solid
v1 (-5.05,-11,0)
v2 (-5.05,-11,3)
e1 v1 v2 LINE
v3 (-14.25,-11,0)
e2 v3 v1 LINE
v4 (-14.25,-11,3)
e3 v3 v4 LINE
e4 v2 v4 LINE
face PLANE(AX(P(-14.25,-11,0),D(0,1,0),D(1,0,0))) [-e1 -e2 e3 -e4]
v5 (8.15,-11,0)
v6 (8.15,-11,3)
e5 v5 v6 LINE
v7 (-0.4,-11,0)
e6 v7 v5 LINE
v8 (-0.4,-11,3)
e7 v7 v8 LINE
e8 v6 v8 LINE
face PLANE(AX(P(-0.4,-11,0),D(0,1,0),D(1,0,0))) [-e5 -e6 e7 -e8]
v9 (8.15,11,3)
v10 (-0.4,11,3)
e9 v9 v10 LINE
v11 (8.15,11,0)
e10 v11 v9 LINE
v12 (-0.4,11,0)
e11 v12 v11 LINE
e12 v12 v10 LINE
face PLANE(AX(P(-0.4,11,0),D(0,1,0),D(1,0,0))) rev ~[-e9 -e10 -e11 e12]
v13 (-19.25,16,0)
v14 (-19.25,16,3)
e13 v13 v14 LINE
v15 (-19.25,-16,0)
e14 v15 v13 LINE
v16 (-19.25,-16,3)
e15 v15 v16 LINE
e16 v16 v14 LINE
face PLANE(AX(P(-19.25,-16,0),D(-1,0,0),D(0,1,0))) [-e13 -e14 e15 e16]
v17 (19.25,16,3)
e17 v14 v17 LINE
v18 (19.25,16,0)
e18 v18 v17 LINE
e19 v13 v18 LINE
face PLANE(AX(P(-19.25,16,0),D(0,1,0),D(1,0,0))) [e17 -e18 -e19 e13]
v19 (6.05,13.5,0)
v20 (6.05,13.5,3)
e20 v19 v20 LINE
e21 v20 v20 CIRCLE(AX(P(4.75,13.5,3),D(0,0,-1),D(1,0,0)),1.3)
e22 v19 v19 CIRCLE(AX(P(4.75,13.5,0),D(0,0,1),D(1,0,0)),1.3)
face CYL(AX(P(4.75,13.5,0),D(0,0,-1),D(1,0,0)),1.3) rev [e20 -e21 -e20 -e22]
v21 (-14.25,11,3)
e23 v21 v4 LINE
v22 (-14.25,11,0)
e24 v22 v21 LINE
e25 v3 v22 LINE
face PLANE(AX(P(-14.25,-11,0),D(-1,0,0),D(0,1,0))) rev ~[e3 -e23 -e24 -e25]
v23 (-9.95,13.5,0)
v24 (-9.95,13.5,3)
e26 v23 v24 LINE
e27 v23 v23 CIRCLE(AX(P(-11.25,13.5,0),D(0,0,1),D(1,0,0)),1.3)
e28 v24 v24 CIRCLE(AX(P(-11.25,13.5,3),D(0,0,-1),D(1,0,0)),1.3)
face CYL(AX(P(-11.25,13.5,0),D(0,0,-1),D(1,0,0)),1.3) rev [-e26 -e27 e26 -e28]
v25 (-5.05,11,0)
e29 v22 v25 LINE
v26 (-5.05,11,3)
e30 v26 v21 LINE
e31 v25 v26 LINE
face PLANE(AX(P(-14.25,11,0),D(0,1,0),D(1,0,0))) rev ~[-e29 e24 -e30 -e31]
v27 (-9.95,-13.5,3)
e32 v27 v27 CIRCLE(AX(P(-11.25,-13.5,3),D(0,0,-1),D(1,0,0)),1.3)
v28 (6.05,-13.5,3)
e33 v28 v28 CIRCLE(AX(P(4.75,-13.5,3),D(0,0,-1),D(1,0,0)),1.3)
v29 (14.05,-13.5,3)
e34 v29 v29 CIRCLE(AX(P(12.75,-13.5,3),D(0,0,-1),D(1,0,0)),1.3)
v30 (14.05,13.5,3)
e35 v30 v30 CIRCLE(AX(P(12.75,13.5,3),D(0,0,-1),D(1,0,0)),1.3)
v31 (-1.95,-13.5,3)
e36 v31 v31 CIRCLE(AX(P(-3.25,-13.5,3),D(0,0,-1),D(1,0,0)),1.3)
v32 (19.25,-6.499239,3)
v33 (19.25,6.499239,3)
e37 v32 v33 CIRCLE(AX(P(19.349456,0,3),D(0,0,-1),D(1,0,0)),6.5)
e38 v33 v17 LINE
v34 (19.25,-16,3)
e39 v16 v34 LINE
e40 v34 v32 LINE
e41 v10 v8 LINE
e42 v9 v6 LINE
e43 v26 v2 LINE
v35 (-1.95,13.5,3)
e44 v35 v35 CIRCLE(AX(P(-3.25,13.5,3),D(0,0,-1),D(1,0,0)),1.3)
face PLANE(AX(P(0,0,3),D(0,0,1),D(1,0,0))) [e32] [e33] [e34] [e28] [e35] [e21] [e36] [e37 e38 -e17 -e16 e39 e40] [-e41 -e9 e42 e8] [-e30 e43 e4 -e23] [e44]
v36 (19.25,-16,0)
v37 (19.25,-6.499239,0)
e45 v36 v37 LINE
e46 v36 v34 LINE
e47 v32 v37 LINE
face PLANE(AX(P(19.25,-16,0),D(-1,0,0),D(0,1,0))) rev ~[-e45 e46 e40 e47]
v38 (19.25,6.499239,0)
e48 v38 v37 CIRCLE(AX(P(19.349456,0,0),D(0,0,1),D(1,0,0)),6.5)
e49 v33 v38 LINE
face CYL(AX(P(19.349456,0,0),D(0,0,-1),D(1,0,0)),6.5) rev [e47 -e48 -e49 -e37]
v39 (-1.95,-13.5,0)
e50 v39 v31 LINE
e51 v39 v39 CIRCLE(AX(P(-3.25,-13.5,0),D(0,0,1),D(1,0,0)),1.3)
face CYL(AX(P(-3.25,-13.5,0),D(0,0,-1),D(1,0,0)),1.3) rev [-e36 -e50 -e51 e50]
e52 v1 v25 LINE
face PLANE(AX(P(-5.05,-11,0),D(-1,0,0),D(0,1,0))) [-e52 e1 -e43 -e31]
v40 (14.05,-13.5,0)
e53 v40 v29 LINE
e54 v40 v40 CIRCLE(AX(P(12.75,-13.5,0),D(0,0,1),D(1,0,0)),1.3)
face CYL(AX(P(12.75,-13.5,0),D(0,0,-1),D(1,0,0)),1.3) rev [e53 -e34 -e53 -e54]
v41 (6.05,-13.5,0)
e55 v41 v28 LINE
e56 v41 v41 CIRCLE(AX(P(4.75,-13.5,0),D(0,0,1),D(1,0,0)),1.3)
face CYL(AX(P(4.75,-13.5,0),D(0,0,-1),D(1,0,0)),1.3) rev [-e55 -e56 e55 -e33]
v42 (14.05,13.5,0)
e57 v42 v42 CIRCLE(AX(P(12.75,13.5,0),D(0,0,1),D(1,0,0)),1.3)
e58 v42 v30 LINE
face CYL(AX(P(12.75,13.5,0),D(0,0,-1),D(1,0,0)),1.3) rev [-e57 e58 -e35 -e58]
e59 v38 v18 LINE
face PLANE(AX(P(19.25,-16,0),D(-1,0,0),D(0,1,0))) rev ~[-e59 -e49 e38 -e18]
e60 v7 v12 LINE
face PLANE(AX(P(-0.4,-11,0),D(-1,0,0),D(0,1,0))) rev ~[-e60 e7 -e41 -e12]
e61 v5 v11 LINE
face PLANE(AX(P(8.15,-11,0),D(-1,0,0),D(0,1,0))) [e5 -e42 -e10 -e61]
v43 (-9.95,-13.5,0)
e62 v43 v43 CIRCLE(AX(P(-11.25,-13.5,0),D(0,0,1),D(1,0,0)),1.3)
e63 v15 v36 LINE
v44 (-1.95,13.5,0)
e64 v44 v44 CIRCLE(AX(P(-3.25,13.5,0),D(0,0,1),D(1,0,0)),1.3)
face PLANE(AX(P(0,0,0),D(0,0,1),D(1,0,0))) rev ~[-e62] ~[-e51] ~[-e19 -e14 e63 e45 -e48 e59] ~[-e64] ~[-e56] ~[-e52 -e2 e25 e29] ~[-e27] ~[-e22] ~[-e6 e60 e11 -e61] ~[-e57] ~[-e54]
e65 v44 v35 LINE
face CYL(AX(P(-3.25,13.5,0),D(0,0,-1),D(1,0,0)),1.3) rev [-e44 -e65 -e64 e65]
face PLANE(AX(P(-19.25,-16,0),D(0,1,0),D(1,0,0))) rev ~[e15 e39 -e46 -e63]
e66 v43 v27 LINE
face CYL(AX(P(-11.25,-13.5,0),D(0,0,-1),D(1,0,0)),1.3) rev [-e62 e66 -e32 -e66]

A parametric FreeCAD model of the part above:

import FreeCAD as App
import Part
import Sketcher

V = App.Vector
Q = App.Units.Quantity

doc = App.newDocument("Part")
body = doc.addObject("PartDesign::Body", "Body")

# Sketch on XY plane
sketch1 = body.newObject("Sketcher::SketchObject", "Sketch")
sketch1.AttachmentSupport = (doc.getObject("XY_Plane"), [""])
sketch1.MapMode = "FlatFace"
sketch1.addGeometry([
    Part.LineSegment(V(-19, 16, 0), V(-19, -16, 0)),
    Part.LineSegment(V(-19, -16, 0), V(19, -16, 0)),
    Part.LineSegment(V(19, -16, 0), V(19, 16, 0)),
    Part.LineSegment(V(19, 16, 0), V(-19, 16, 0)),
], False)
sketch1.addConstraint([
    Sketcher.Constraint("Coincident", 0, 2, 1, 1),
    Sketcher.Constraint("Coincident", 1, 2, 2, 1),
    Sketcher.Constraint("Coincident", 2, 2, 3, 1),
    Sketcher.Constraint("Coincident", 3, 2, 0, 1),
    Sketcher.Constraint("Vertical", 0),
    Sketcher.Constraint("Horizontal", 1),
    Sketcher.Constraint("Vertical", 2),
    Sketcher.Constraint("Horizontal", 3),
    Sketcher.Constraint("Symmetric", 0, 2, 2, 2, -1, 1),
    Sketcher.Constraint("DistanceY", 0, 2, 0, 1, Q("32 mm")),
    Sketcher.Constraint("DistanceX", 1, 1, 1, 2, Q("38.5 mm")),
])
pad1 = body.newObject("PartDesign::Pad", "Pad")
pad1.Profile = sketch1
pad1.Length = 3

# Sketch on XY plane
sketch2 = body.newObject("Sketcher::SketchObject", "Sketch001")
sketch2.AttachmentSupport = (doc.getObject("XY_Plane"), [""])
sketch2.MapMode = "FlatFace"
sketch2.addGeometry([
    Part.LineSegment(V(-14.2, 11, 0), V(-14.2, -11, 0)),  # 0
    Part.LineSegment(V(-14.2, -11, 0), V(-5, -11, 0)),  # 1
    Part.LineSegment(V(-5, -11, 0), V(-5, 11, 0)),  # 2
    Part.LineSegment(V(-5, 11, 0), V(-14.2, 11, 0)),  # 3
    Part.Circle(V(19.3, 0, 0), V(0, 0, 1), 6.5),  # 4
    Part.LineSegment(V(-0.4, 11, 0), V(-0.4, -11, 0)),  # 5
    Part.LineSegment(V(-0.4, -11, 0), V(8.2, -11, 0)),  # 6
    Part.LineSegment(V(8.2, -11, 0), V(8.2, 11, 0)),  # 7
    Part.LineSegment(V(8.2, 11, 0), V(-0.4, 11, 0)),  # 8
    Part.Circle(V(-11.2, -13.5, 0), V(0, 0, 1), 1.3),  # 9
    Part.Circle(V(-3.2, -13.5, 0), V(0, 0, 1), 1.3),  # 10
    Part.Circle(V(4.8, -13.5, 0), V(0, 0, 1), 1.3),  # 11
    Part.Circle(V(12.8, -13.5, 0), V(0, 0, 1), 1.3),  # 12
    Part.Circle(V(-11.2, 13.5, 0), V(0, 0, 1), 1.3),  # 13
    Part.Circle(V(-3.2, 13.5, 0), V(0, 0, 1), 1.3),  # 14
    Part.Circle(V(4.8, 13.5, 0), V(0, 0, 1), 1.3),  # 15
    Part.Circle(V(12.8, 13.5, 0), V(0, 0, 1), 1.3),  # 16
], False)
sketch2.addConstraint([
    Sketcher.Constraint("Coincident", 0, 2, 1, 1),
    Sketcher.Constraint("Coincident", 1, 2, 2, 1),
    Sketcher.Constraint("Coincident", 2, 2, 3, 1),
    Sketcher.Constraint("Coincident", 3, 2, 0, 1),
    Sketcher.Constraint("Coincident", 5, 2, 6, 1),
    Sketcher.Constraint("Coincident", 6, 2, 7, 1),
    Sketcher.Constraint("Coincident", 7, 2, 8, 1),
    Sketcher.Constraint("Coincident", 8, 2, 5, 1),
    Sketcher.Constraint("Vertical", 0),
    Sketcher.Constraint("Horizontal", 1),
    Sketcher.Constraint("Vertical", 2),
    Sketcher.Constraint("Horizontal", 3),
    Sketcher.Constraint("Vertical", 5),
    Sketcher.Constraint("Horizontal", 6),
    Sketcher.Constraint("Vertical", 7),
    Sketcher.Constraint("Horizontal", 8),
    Sketcher.Constraint("Equal", 9, 10),
    Sketcher.Constraint("Equal", 10, 11),
    Sketcher.Constraint("Equal", 11, 12),
    Sketcher.Constraint("Equal", 12, 13),
    Sketcher.Constraint("Equal", 13, 14),
    Sketcher.Constraint("Equal", 14, 15),
    Sketcher.Constraint("Equal", 15, 16),
    Sketcher.Constraint("Symmetric", 9, 3, 13, 3, -1),
    Sketcher.Constraint("Symmetric", 10, 3, 14, 3, -1),
    Sketcher.Constraint("Symmetric", 11, 3, 15, 3, -1),
    Sketcher.Constraint("Symmetric", 12, 3, 16, 3, -1),
    Sketcher.Constraint("PointOnObject", 4, 3, -1),
    Sketcher.Constraint("Horizontal", 9, 3, 10, 3),
    Sketcher.Constraint("Horizontal", 10, 3, 11, 3),
    Sketcher.Constraint("Horizontal", 11, 3, 12, 3),
    Sketcher.Constraint("Horizontal", 1, 2, 5, 2),
    Sketcher.Constraint("Horizontal", 3, 2, 7, 2),
    Sketcher.Constraint("Diameter", 4, Q("13 mm")),
    Sketcher.Constraint("Diameter", 9, Q("2.6 mm")),
    Sketcher.Constraint("DistanceY", 0, 2, 0, 1, Q("22 mm")),
    Sketcher.Constraint("DistanceX", 1, 1, 1, 2, Q("9.2 mm")),
    Sketcher.Constraint("DistanceY", 0, 2, -1, 1, Q("11 mm")),
    Sketcher.Constraint("DistanceX", 9, 3, 10, 3, Q("8 mm")),
    Sketcher.Constraint("DistanceX", 10, 3, 11, 3, Q("8 mm")),
    Sketcher.Constraint("DistanceX", 11, 3, 12, 3, Q("8 mm")),
    Sketcher.Constraint("DistanceY", 9, 3, 13, 3, Q("27 mm")),
    Sketcher.Constraint("DistanceX", 0, 2, 9, 3, Q("3 mm")),
    Sketcher.Constraint("DistanceX", 6, 1, 6, 2, Q("8.55 mm")),
    Sketcher.Constraint("DistanceX", 5, 2, -1, 1, Q("0.4 mm")),
    Sketcher.Constraint("DistanceX", 11, 3, 6, 2, Q("3.4 mm")),
    Sketcher.Constraint("DistanceX", -1, 1, 4, 3, Q("19.349456 mm")),
])
pocket1 = body.newObject("PartDesign::Pocket", "Pocket")
pocket1.Profile = sketch2
pocket1.Type = "ThroughAll"
pocket1.Reversed = True

doc.recompute()
